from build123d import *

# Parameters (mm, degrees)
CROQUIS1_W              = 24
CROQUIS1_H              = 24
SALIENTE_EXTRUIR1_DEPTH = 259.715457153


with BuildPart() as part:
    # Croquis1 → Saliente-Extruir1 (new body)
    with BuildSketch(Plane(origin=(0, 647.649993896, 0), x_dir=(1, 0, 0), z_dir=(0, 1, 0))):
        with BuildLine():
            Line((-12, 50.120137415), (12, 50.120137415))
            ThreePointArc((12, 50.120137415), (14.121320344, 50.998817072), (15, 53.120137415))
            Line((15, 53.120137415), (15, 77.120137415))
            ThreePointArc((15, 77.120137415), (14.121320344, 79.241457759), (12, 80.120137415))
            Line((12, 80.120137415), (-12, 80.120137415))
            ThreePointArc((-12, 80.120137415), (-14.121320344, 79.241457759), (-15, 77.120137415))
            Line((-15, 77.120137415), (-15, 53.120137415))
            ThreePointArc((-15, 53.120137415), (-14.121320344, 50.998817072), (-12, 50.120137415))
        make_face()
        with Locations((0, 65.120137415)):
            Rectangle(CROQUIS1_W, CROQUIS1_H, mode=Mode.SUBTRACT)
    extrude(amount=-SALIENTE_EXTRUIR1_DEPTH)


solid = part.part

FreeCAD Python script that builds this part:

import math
import FreeCAD as App
import Part
import Sketcher
from FreeCAD import Vector
Q = App.Units.Quantity

doc = App.newDocument("Part")
body = doc.addObject("PartDesign::Body", "Body")

sketch1 = body.newObject("Sketcher::SketchObject", "Sketch")
sketch1.AttachmentSupport = (doc.getObject("XZ_Plane"), [""])
sketch1.MapMode = "FlatFace"
sketch1.AttachmentOffset = App.Placement(Vector(0, 0, -647.649994), App.Rotation())
sketch1.addGeometry(Part.LineSegment(Vector(-12, -50.1, 0), Vector(12, -50.1, 0)), False)
sketch1.addGeometry(Part.ArcOfCircle(Part.Circle(Vector(12, -53.1, 0), Vector(0, 0, 1), 3), math.radians(0), math.radians(90)), False)
sketch1.addGeometry(Part.LineSegment(Vector(15, -53.1, 0), Vector(15, -77.1, 0)), False)
sketch1.addGeometry(Part.ArcOfCircle(Part.Circle(Vector(12, -77.1, 0), Vector(0, 0, 1), 3), math.radians(-90), math.radians(0)), False)
sketch1.addGeometry(Part.LineSegment(Vector(12, -80.1, 0), Vector(-12, -80.1, 0)), False)
sketch1.addGeometry(Part.ArcOfCircle(Part.Circle(Vector(-12, -77.1, 0), Vector(0, 0, 1), 3), math.radians(180), math.radians(270)), False)
sketch1.addGeometry(Part.LineSegment(Vector(-15, -77.1, 0), Vector(-15, -53.1, 0)), False)
sketch1.addGeometry(Part.ArcOfCircle(Part.Circle(Vector(-12, -53.1, 0), Vector(0, 0, 1), 3), math.radians(90), math.radians(180)), False)
sketch1.addGeometry(Part.LineSegment(Vector(12, -53.1, 0), Vector(-12, -53.1, 0)), False)
sketch1.addGeometry(Part.LineSegment(Vector(-12, -53.1, 0), Vector(-12, -77.1, 0)), False)
sketch1.addGeometry(Part.LineSegment(Vector(-12, -77.1, 0), Vector(12, -77.1, 0)), False)
sketch1.addGeometry(Part.LineSegment(Vector(12, -77.1, 0), Vector(12, -53.1, 0)), False)
sketch1.addConstraint(Sketcher.Constraint("Tangent", 0, 2, 1, 2))
sketch1.addConstraint(Sketcher.Constraint("Tangent", 1, 1, 2, 1))
sketch1.addConstraint(Sketcher.Constraint("Tangent", 2, 2, 3, 2))
sketch1.addConstraint(Sketcher.Constraint("Tangent", 3, 1, 4, 1))
sketch1.addConstraint(Sketcher.Constraint("Tangent", 4, 2, 5, 2))
sketch1.addConstraint(Sketcher.Constraint("Tangent", 5, 1, 6, 1))
sketch1.addConstraint(Sketcher.Constraint("Tangent", 6, 2, 7, 2))
sketch1.addConstraint(Sketcher.Constraint("Tangent", 7, 1, 0, 1))
sketch1.addConstraint(Sketcher.Constraint("Coincident", 8, 2, 9, 1))
sketch1.addConstraint(Sketcher.Constraint("Coincident", 9, 2, 10, 1))
sketch1.addConstraint(Sketcher.Constraint("Coincident", 10, 2, 11, 1))
sketch1.addConstraint(Sketcher.Constraint("Coincident", 11, 2, 8, 1))
sketch1.addConstraint(Sketcher.Constraint("Horizontal", 0))
sketch1.addConstraint(Sketcher.Constraint("Vertical", 2))
sketch1.addConstraint(Sketcher.Constraint("Horizontal", 4))
sketch1.addConstraint(Sketcher.Constraint("Vertical", 6))
sketch1.addConstraint(Sketcher.Constraint("Horizontal", 8))
sketch1.addConstraint(Sketcher.Constraint("Vertical", 9))
sketch1.addConstraint(Sketcher.Constraint("Horizontal", 10))
sketch1.addConstraint(Sketcher.Constraint("Vertical", 11))
sketch1.addConstraint(Sketcher.Constraint("Coincident", 8, 2, 7, 3))
sketch1.addConstraint(Sketcher.Constraint("Coincident", 9, 2, 5, 3))
sketch1.addConstraint(Sketcher.Constraint("Coincident", 10, 2, 3, 3))
sketch1.addConstraint(Sketcher.Constraint("Equal", 1, 3))
sketch1.addConstraint(Sketcher.Constraint("Equal", 10, 2))
sketch1.addConstraint(Sketcher.Constraint("Radius", 1, Q("3 mm")))
sketch1.addConstraint(Sketcher.Constraint("DistanceX", 0, 1, 0, 2, Q("24 mm")))
sketch1.addConstraint(Sketcher.Constraint("DistanceX", -1, 1, 1, 3, Q("12 mm")))
sketch1.addConstraint(Sketcher.Constraint("DistanceY", 1, 3, -1, 1, Q("53.120137 mm")))
pad1 = body.newObject("PartDesign::Pad", "Pad")
pad1.Profile = sketch1
pad1.Length = 259.715457

doc.recompute()
